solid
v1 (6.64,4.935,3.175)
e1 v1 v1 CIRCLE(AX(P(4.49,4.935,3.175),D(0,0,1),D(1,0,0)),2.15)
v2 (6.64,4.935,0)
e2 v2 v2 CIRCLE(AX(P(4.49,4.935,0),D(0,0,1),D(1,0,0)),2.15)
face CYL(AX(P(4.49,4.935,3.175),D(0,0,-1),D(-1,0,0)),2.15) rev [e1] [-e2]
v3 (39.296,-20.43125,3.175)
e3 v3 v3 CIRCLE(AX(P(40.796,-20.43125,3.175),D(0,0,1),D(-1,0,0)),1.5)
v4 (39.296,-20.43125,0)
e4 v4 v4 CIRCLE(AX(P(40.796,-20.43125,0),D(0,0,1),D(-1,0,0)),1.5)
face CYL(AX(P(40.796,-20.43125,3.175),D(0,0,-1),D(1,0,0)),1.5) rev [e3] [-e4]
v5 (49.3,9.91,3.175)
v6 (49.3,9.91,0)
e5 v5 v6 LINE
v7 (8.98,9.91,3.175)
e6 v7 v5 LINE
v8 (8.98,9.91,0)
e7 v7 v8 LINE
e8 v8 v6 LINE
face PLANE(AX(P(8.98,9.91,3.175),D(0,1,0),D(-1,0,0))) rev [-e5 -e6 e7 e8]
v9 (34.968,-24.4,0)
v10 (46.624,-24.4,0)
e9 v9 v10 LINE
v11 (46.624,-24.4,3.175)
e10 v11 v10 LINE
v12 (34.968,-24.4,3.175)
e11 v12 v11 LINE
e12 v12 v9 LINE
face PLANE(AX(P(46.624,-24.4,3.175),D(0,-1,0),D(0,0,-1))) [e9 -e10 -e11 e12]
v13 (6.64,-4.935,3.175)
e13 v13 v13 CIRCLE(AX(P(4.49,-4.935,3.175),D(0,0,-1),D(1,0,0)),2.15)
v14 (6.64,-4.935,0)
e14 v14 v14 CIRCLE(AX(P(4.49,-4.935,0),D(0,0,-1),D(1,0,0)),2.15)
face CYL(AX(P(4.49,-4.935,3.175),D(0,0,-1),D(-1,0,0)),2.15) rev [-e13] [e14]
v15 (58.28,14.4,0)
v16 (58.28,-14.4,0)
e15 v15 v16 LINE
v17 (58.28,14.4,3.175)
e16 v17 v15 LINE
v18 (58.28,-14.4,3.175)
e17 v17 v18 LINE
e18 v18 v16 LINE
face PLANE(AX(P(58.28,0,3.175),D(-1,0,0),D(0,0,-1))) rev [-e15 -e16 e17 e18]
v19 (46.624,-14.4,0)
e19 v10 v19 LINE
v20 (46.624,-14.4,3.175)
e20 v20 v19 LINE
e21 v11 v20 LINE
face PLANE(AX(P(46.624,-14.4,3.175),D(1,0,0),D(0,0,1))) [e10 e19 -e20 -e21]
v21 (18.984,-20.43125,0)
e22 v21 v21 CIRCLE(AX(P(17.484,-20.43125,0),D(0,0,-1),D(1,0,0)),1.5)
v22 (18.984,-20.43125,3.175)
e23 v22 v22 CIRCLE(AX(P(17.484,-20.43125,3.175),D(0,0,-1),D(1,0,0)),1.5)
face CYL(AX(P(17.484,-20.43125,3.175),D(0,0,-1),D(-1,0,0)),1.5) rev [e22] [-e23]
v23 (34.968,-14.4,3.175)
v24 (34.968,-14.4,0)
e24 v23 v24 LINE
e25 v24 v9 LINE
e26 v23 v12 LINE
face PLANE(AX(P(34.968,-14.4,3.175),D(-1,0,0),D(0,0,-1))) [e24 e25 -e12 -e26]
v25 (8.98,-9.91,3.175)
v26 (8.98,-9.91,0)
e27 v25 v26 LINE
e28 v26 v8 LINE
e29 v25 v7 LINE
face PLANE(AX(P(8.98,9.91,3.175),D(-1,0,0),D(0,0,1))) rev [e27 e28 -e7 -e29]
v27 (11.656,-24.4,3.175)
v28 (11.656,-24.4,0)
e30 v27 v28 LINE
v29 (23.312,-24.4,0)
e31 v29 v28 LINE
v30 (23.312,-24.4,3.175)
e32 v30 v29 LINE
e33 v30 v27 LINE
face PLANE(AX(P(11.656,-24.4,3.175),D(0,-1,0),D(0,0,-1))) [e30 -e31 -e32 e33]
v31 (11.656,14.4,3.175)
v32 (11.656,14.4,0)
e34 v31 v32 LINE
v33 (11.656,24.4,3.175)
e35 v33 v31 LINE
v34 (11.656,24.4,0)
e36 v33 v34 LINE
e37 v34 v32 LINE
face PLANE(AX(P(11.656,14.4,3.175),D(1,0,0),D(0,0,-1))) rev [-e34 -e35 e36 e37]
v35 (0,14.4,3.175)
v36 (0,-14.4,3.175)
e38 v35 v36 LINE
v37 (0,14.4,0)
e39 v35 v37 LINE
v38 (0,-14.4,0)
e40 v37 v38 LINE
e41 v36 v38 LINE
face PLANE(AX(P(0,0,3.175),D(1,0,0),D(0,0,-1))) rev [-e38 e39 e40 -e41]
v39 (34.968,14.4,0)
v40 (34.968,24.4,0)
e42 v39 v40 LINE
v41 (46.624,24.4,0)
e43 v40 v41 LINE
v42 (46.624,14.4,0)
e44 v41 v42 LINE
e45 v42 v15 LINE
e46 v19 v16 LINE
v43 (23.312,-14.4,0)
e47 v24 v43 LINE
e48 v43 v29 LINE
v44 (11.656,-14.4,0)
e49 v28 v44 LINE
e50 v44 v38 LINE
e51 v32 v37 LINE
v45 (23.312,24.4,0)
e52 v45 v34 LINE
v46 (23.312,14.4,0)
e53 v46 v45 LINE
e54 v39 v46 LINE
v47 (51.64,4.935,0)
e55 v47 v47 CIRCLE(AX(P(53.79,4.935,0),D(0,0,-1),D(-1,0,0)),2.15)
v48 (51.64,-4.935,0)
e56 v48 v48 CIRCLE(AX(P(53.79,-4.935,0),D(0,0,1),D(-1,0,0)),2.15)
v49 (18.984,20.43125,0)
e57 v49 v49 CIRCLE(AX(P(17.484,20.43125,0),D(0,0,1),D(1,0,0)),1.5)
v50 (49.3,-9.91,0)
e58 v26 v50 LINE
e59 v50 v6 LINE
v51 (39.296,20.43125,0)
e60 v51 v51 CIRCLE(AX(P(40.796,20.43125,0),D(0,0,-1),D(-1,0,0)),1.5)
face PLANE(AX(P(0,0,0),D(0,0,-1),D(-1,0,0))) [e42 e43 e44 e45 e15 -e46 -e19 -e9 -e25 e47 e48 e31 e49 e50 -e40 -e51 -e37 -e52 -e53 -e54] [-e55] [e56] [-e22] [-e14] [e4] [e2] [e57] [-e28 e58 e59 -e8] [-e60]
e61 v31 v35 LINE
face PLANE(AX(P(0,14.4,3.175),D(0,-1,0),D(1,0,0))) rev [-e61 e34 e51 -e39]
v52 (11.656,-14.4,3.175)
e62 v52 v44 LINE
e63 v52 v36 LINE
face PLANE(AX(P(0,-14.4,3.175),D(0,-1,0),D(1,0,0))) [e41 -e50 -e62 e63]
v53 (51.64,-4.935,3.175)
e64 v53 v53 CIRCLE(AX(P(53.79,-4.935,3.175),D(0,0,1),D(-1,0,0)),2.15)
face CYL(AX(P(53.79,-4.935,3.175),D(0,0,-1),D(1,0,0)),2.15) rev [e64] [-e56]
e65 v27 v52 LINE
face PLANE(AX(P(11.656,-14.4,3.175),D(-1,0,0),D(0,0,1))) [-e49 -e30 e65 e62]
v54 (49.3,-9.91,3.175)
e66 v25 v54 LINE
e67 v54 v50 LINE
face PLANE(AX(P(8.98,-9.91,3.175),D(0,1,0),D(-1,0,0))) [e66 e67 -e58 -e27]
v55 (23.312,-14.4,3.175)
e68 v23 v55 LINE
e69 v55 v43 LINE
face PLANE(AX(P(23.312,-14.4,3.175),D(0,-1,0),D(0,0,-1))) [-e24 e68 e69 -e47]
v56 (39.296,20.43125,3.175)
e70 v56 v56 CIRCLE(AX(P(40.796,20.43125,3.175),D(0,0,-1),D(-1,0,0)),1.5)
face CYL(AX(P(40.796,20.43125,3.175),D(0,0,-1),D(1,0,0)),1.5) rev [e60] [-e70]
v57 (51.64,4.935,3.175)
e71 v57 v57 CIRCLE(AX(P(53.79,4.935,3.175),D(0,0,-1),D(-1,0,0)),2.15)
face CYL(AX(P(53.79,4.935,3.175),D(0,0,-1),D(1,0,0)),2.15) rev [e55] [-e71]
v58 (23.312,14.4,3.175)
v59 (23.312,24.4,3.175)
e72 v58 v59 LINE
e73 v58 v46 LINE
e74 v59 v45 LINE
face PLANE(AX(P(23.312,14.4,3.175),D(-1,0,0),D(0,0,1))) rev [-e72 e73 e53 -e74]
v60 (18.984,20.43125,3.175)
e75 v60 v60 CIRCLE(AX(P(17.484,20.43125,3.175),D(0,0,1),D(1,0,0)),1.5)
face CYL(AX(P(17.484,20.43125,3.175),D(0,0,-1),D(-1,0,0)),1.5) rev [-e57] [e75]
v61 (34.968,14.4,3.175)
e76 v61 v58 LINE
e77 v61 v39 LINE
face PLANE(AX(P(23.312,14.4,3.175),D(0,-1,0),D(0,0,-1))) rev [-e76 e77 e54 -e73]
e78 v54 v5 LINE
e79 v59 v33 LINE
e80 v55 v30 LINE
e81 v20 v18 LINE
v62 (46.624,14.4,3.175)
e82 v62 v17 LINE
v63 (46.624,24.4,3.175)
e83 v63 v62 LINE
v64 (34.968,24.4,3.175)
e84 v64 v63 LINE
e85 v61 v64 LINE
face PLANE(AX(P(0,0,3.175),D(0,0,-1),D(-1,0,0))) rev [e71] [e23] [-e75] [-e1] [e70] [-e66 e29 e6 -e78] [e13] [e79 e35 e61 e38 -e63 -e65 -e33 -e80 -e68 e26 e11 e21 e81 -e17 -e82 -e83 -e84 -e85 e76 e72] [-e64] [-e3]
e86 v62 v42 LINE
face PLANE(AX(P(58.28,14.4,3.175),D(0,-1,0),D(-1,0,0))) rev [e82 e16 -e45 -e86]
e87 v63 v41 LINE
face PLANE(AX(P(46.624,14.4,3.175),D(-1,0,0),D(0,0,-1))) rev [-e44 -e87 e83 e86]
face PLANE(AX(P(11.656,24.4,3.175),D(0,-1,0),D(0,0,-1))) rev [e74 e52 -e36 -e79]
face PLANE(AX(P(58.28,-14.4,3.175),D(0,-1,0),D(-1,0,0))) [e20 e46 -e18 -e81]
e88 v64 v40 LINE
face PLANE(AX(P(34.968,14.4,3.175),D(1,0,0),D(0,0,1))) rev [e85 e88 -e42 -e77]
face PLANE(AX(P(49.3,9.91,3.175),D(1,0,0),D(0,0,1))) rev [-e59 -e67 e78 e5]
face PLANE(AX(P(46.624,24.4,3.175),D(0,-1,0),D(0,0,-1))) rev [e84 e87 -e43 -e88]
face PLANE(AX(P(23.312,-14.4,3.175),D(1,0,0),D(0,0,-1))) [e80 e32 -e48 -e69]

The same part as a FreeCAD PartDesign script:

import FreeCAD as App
import Part
import Sketcher
from FreeCAD import Vector

doc = App.newDocument("Part")
body = doc.addObject("PartDesign::Body", "Body")

sketch1 = body.newObject("Sketcher::SketchObject", "Sketch")
sketch1.AttachmentSupport = (doc.getObject("XY_Plane"), [""])
sketch1.MapMode = "FlatFace"
sketch1.addGeometry([
    Part.LineSegment(Vector(29.1, 14.4, 0), Vector(23.3, 14.4, 0)),
    Part.LineSegment(Vector(23.3, 14.4, 0), Vector(23.3, 24.4, 0)),
    Part.LineSegment(Vector(23.3, 24.4, 0), Vector(11.7, 24.4, 0)),
    Part.LineSegment(Vector(11.7, 24.4, 0), Vector(11.7, 14.4, 0)),
    Part.LineSegment(Vector(11.7, 14.4, 0), Vector(0, 14.4, 0)),
    Part.LineSegment(Vector(0, 14.4, 0), Vector(0, 0, 0)),
    Part.LineSegment(Vector(0, 0, 0), Vector(9, 0, 0)),
    Part.LineSegment(Vector(9, 0, 0), Vector(9, 9.9, 0)),
    Part.LineSegment(Vector(9, 9.9, 0), Vector(29.1, 9.9, 0)),
    Part.LineSegment(Vector(29.1, 9.9, 0), Vector(29.1, 14.4, 0)),
    Part.Circle(Vector(4.5, 4.9, 0), Vector(0, 0, 1), 2.1),
    Part.Circle(Vector(17.5, 20.4, 0), Vector(0, 0, 1), 1.5),
], False)
sketch1.addConstraint([
    Sketcher.Constraint("Coincident", 0, 2, 1, 1),
    Sketcher.Constraint("Coincident", 1, 2, 2, 1),
    Sketcher.Constraint("Coincident", 2, 2, 3, 1),
    Sketcher.Constraint("Coincident", 3, 2, 4, 1),
    Sketcher.Constraint("Coincident", 4, 2, 5, 1),
    Sketcher.Constraint("Coincident", 5, 2, 6, 1),
    Sketcher.Constraint("Coincident", 6, 2, 7, 1),
    Sketcher.Constraint("Coincident", 7, 2, 8, 1),
    Sketcher.Constraint("Coincident", 8, 2, 9, 1),
    Sketcher.Constraint("Coincident", 9, 2, 0, 1),
    Sketcher.Constraint("Horizontal", 0),
    Sketcher.Constraint("Vertical", 1),
    Sketcher.Constraint("Horizontal", 2),
    Sketcher.Constraint("Vertical", 3),
    Sketcher.Constraint("Horizontal", 4),
    Sketcher.Constraint("Vertical", 5),
    Sketcher.Constraint("Horizontal", 6),
    Sketcher.Constraint("Vertical", 7),
    Sketcher.Constraint("Horizontal", 8),
    Sketcher.Constraint("Vertical", 9),
    Sketcher.Constraint("Coincident", 5, 2, -1, 1),
    Sketcher.Constraint("Horizontal", 0, 2, 3, 2),
    Sketcher.Constraint("Equal", 2, 4),
    Sketcher.Constraint("Diameter", 11, 3.0),
    Sketcher.Constraint("Diameter", 10, 4.3),
    Sketcher.Constraint("DistanceY", 1, 1, 1, 2, 10.0),
    Sketcher.Constraint("DistanceY", 5, 2, 5, 1, 14.4),
    Sketcher.Constraint("DistanceX", 6, 1, 6, 2, 8.98),
    Sketcher.Constraint("DistanceX", 8, 1, 8, 2, 20.16),
    Sketcher.Constraint("DistanceY", 7, 1, 7, 2, 9.91),
    Sketcher.Constraint("DistanceX", 0, 2, 0, 1, 5.828),
    Sketcher.Constraint("DistanceX", -1, 1, 10, 3, 4.49),
    Sketcher.Constraint("DistanceY", -1, 1, 10, 3, 4.935),
    Sketcher.Constraint("DistanceX", -1, 1, 11, 3, 17.484),
    Sketcher.Constraint("DistanceY", -1, 1, 11, 3, 20.43125),
])
pad1 = body.newObject("PartDesign::Pad", "Pad")
pad1.Profile = sketch1
pad1.Length = 3.175
doc.recompute()

mirrored = body.newObject("PartDesign::Mirrored", "Mirrored")
mirrored.Originals = [pad1]
mirrored.MirrorPlane = (doc.getObject("XZ_Plane"), [""])
body.Tip = mirrored
body2 = doc.addObject("PartDesign::Body", "Body001")
doc.recompute()

body2.BaseFeature = body
doc.recompute()

mirroring = doc.addObject("Part::Mirroring", "Mirroring")
mirroring.Source = body
mirroring.Base = Vector(29.14, 9.91, 3.175)
mirroring.Normal = Vector(-1, 0, 0)
body3 = doc.addObject("PartDesign::Body", "Body002")
body3.BaseFeature = mirroring
boolean = body2.newObject("PartDesign::Boolean", "Boolean")
boolean.Type = "Fuse"
boolean.addObjects([body3])
doc.recompute()
mirroring.Visibility = False

doc.recompute()
